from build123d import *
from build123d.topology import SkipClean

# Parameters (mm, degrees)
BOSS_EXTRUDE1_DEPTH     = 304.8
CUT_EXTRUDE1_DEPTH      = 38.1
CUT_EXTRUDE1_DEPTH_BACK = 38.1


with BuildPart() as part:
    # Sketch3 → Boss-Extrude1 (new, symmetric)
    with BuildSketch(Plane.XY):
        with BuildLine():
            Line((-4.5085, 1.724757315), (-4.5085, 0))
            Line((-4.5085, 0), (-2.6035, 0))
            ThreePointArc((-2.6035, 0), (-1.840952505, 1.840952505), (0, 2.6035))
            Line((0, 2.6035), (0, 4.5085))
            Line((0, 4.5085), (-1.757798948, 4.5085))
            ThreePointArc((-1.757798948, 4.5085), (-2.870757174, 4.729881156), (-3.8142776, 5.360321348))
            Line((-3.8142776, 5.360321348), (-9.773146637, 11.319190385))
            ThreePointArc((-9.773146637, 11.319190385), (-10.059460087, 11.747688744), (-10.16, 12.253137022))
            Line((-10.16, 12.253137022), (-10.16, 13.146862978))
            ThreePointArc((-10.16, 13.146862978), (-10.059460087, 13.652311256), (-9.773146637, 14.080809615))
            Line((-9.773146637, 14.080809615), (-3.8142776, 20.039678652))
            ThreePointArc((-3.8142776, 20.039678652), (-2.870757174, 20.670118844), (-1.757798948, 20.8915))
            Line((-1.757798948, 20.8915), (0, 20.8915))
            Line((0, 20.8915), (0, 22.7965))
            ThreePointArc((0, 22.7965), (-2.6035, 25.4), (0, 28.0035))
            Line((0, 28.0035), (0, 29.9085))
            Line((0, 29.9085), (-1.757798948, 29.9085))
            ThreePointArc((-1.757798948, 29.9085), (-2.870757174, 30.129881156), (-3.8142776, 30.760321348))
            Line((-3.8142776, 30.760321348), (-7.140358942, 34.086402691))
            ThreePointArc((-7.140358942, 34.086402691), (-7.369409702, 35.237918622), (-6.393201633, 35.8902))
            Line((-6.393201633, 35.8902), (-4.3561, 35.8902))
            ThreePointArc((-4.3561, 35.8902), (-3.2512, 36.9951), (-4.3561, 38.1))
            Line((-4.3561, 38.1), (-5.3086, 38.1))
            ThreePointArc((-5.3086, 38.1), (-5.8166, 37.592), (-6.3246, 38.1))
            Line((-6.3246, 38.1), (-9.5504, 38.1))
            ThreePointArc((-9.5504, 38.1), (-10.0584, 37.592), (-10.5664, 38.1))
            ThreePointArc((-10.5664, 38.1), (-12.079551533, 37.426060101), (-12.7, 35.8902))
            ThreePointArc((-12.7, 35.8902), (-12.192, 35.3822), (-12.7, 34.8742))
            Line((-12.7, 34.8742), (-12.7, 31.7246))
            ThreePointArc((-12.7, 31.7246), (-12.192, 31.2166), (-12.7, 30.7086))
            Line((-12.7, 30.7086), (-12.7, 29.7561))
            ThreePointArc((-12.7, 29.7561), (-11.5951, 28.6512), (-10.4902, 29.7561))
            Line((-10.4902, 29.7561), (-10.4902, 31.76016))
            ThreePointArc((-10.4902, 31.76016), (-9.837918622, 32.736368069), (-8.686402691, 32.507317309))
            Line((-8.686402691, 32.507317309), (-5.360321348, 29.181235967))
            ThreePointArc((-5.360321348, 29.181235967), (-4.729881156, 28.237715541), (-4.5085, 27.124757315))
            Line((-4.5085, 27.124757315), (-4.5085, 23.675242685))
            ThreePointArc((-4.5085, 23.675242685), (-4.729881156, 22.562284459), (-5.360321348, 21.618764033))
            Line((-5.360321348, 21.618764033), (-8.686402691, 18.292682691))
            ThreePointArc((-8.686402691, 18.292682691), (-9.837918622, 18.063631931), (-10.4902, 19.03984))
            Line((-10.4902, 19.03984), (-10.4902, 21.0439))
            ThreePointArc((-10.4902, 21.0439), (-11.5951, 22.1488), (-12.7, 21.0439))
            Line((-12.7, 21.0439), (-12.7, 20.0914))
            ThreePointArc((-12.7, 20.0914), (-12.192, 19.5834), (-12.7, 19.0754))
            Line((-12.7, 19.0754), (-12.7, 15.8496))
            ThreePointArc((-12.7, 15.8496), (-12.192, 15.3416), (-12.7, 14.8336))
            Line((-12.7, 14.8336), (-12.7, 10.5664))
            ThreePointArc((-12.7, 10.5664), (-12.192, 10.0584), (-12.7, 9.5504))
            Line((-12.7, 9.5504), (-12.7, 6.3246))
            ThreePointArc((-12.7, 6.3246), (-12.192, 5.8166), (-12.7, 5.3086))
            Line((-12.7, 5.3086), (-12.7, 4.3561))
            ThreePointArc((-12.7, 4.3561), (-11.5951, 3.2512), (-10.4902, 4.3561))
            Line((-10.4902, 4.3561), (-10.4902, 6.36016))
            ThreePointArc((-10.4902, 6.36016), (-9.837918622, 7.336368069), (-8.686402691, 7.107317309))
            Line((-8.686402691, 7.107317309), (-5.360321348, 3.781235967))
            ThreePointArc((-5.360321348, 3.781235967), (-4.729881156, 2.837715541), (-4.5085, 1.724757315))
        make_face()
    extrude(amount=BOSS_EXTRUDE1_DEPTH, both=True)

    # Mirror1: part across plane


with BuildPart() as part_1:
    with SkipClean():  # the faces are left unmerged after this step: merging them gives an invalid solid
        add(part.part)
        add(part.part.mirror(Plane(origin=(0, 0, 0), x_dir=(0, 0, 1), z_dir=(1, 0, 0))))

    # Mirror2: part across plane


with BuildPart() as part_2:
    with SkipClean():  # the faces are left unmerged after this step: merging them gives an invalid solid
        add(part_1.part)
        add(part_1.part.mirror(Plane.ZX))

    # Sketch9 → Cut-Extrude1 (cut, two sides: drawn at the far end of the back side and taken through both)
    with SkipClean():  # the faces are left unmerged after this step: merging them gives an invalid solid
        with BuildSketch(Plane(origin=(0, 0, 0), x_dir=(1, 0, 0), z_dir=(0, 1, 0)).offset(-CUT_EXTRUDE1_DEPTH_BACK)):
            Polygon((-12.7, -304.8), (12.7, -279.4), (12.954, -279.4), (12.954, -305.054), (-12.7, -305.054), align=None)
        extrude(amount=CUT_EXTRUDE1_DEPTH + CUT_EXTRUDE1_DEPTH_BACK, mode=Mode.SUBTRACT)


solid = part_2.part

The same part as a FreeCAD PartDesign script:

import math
import FreeCAD as App
import Part
import Sketcher

V = App.Vector
Q = App.Units.Quantity


def add_polygon(sketch, points):
    """Adds a closed chain of lines whose ends are joined by coincident constraints."""
    first, n = sketch.GeometryCount, len(points)
    for a, b in zip(points, points[1:] + points[:1]):
        sketch.addGeometry(Part.LineSegment(App.Vector(*a, 0), App.Vector(*b, 0)), False)
    for i in range(n):
        sketch.addConstraint(Sketcher.Constraint("Coincident", first + i, 2, first + (i + 1) % n, 1))

doc = App.newDocument("Part")
body = doc.addObject("PartDesign::Body", "Body")

# Sketch on XY plane
sketch1 = body.newObject("Sketcher::SketchObject", "Sketch")
sketch1.AttachmentSupport = (doc.getObject("XY_Plane"), [""])
sketch1.MapMode = "FlatFace"
sketch1.addGeometry(Part.LineSegment(V(-4.5085, 1.724757, 0), V(-4.5085, 0, 0)), False)
sketch1.addGeometry(Part.LineSegment(V(-4.5085, 0, 0), V(-2.6035, 0, 0)), False)
sketch1.addGeometry(Part.ArcOfCircle(Part.Circle(V(0, 0, 0), V(0, 0, 1), 2.6035), math.radians(90), math.radians(180)), False)
sketch1.addGeometry(Part.LineSegment(V(0, 2.6035, 0), V(0, 4.5085, 0)), False)
sketch1.addGeometry(Part.LineSegment(V(0, 4.5085, 0), V(-1.757799, 4.5085, 0)), False)
sketch1.addGeometry(Part.ArcOfCircle(Part.Circle(V(-1.757799, 7.4168, 0), V(0, 0, 1), 2.9083), math.radians(-135), math.radians(-90)), False)
sketch1.addGeometry(Part.LineSegment(V(-3.814278, 5.360321, 0), V(-9.773147, 11.31919, 0)), False)
sketch1.addGeometry(Part.ArcOfCircle(Part.Circle(V(-8.8392, 12.253137, 0), V(0, 0, 1), 1.3208), math.radians(180), math.radians(225)), False)
sketch1.addGeometry(Part.LineSegment(V(-10.16, 12.253137, 0), V(-10.16, 13.146863, 0)), False)
sketch1.addGeometry(Part.ArcOfCircle(Part.Circle(V(-8.8392, 13.146863, 0), V(0, 0, 1), 1.3208), math.radians(135), math.radians(180)), False)
sketch1.addGeometry(Part.LineSegment(V(-9.773147, 14.08081, 0), V(-3.814278, 20.039679, 0)), False)
sketch1.addGeometry(Part.ArcOfCircle(Part.Circle(V(-1.757799, 17.9832, 0), V(0, 0, 1), 2.9083), math.radians(90), math.radians(135)), False)
sketch1.addGeometry(Part.LineSegment(V(-1.757799, 20.8915, 0), V(0, 20.8915, 0)), False)
sketch1.addGeometry(Part.LineSegment(V(0, 20.8915, 0), V(0, 22.7965, 0)), False)
sketch1.addGeometry(Part.ArcOfCircle(Part.Circle(V(0, 25.4, 0), V(0, 0, 1), 2.6035), math.radians(90), math.radians(270)), False)
sketch1.addGeometry(Part.LineSegment(V(0, 28.0035, 0), V(0, 29.9085, 0)), False)
sketch1.addGeometry(Part.LineSegment(V(0, 29.9085, 0), V(-1.757799, 29.9085, 0)), False)
sketch1.addGeometry(Part.ArcOfCircle(Part.Circle(V(-1.757799, 32.8168, 0), V(0, 0, 1), 2.9083), math.radians(-135), math.radians(-90)), False)
sketch1.addGeometry(Part.LineSegment(V(-3.814278, 30.760321, 0), V(-7.140359, 34.086403, 0)), False)
sketch1.addGeometry(Part.ArcOfCircle(Part.Circle(V(-6.393202, 34.83356, 0), V(0, 0, 1), 1.05664), math.radians(90), math.radians(225)), False)
sketch1.addGeometry(Part.LineSegment(V(-6.393202, 35.8902, 0), V(-4.3561, 35.8902, 0)), False)
sketch1.addGeometry(Part.ArcOfCircle(Part.Circle(V(-4.3561, 36.9951, 0), V(0, 0, 1), 1.1049), math.radians(-90), math.radians(90)), False)
sketch1.addGeometry(Part.LineSegment(V(-4.3561, 38.1, 0), V(-5.3086, 38.1, 0)), False)
sketch1.addGeometry(Part.ArcOfCircle(Part.Circle(V(-5.8166, 38.1, 0), V(0, 0, 1), 0.508), math.radians(180), math.radians(360)), False)
sketch1.addGeometry(Part.LineSegment(V(-6.3246, 38.1, 0), V(-9.5504, 38.1, 0)), False)
sketch1.addGeometry(Part.ArcOfCircle(Part.Circle(V(-10.0584, 38.1, 0), V(0, 0, 1), 0.508), math.radians(180), math.radians(360)), False)
sketch1.addGeometry(Part.ArcOfCircle(Part.Circle(V(-10.488839, 35.8902, 0), V(0, 0, 1), 2.211161), math.radians(92.010172), math.radians(180)), False)
sketch1.addGeometry(Part.ArcOfCircle(Part.Circle(V(-12.7, 35.3822, 0), V(0, 0, 1), 0.508), math.radians(-90), math.radians(90)), False)
sketch1.addGeometry(Part.LineSegment(V(-12.7, 34.8742, 0), V(-12.7, 31.7246, 0)), False)
sketch1.addGeometry(Part.ArcOfCircle(Part.Circle(V(-12.7, 31.2166, 0), V(0, 0, 1), 0.508), math.radians(-90), math.radians(90)), False)
sketch1.addGeometry(Part.LineSegment(V(-12.7, 30.7086, 0), V(-12.7, 29.7561, 0)), False)
sketch1.addGeometry(Part.ArcOfCircle(Part.Circle(V(-11.5951, 29.7561, 0), V(0, 0, 1), 1.1049), math.radians(180), math.radians(360)), False)
sketch1.addGeometry(Part.LineSegment(V(-10.4902, 29.7561, 0), V(-10.4902, 31.76016, 0)), False)
sketch1.addGeometry(Part.ArcOfCircle(Part.Circle(V(-9.43356, 31.76016, 0), V(0, 0, 1), 1.05664), math.radians(45), math.radians(180)), False)
sketch1.addGeometry(Part.LineSegment(V(-8.686403, 32.507317, 0), V(-5.360321, 29.181236, 0)), False)
sketch1.addGeometry(Part.ArcOfCircle(Part.Circle(V(-7.4168, 27.124757, 0), V(0, 0, 1), 2.9083), math.radians(0), math.radians(45)), False)
sketch1.addGeometry(Part.LineSegment(V(-4.5085, 27.124757, 0), V(-4.5085, 23.675243, 0)), False)
sketch1.addGeometry(Part.ArcOfCircle(Part.Circle(V(-7.4168, 23.675243, 0), V(0, 0, 1), 2.9083), math.radians(-45), math.radians(0)), False)
sketch1.addGeometry(Part.LineSegment(V(-5.360321, 21.618764, 0), V(-8.686403, 18.292683, 0)), False)
sketch1.addGeometry(Part.ArcOfCircle(Part.Circle(V(-9.43356, 19.03984, 0), V(0, 0, 1), 1.05664), math.radians(180), math.radians(315)), False)
sketch1.addGeometry(Part.LineSegment(V(-10.4902, 19.03984, 0), V(-10.4902, 21.0439, 0)), False)
sketch1.addGeometry(Part.ArcOfCircle(Part.Circle(V(-11.5951, 21.0439, 0), V(0, 0, 1), 1.1049), math.radians(0), math.radians(180)), False)
sketch1.addGeometry(Part.LineSegment(V(-12.7, 21.0439, 0), V(-12.7, 20.0914, 0)), False)
sketch1.addGeometry(Part.ArcOfCircle(Part.Circle(V(-12.7, 19.5834, 0), V(0, 0, 1), 0.508), math.radians(-90), math.radians(90)), False)
sketch1.addGeometry(Part.LineSegment(V(-12.7, 19.0754, 0), V(-12.7, 15.8496, 0)), False)
sketch1.addGeometry(Part.ArcOfCircle(Part.Circle(V(-12.7, 15.3416, 0), V(0, 0, 1), 0.508), math.radians(-90), math.radians(90)), False)
sketch1.addGeometry(Part.LineSegment(V(-12.7, 14.8336, 0), V(-12.7, 10.5664, 0)), False)
sketch1.addGeometry(Part.ArcOfCircle(Part.Circle(V(-12.7, 10.0584, 0), V(0, 0, 1), 0.508), math.radians(-90), math.radians(90)), False)
sketch1.addGeometry(Part.LineSegment(V(-12.7, 9.5504, 0), V(-12.7, 6.3246, 0)), False)
sketch1.addGeometry(Part.ArcOfCircle(Part.Circle(V(-12.7, 5.8166, 0), V(0, 0, 1), 0.508), math.radians(-90), math.radians(90)), False)
sketch1.addGeometry(Part.LineSegment(V(-12.7, 5.3086, 0), V(-12.7, 4.3561, 0)), False)
sketch1.addGeometry(Part.ArcOfCircle(Part.Circle(V(-11.5951, 4.3561, 0), V(0, 0, 1), 1.1049), math.radians(180), math.radians(360)), False)
sketch1.addGeometry(Part.LineSegment(V(-10.4902, 4.3561, 0), V(-10.4902, 6.36016, 0)), False)
sketch1.addGeometry(Part.ArcOfCircle(Part.Circle(V(-9.43356, 6.36016, 0), V(0, 0, 1), 1.05664), math.radians(45), math.radians(180)), False)
sketch1.addGeometry(Part.LineSegment(V(-8.686403, 7.107317, 0), V(-5.360321, 3.781236, 0)), False)
sketch1.addGeometry(Part.ArcOfCircle(Part.Circle(V(-7.4168, 1.724757, 0), V(0, 0, 1), 2.9083), math.radians(0), math.radians(45)), False)
sketch1.addConstraint(Sketcher.Constraint("Coincident", 0, 2, 1, 1))
sketch1.addConstraint(Sketcher.Constraint("Coincident", 1, 2, 2, 2))
sketch1.addConstraint(Sketcher.Constraint("Coincident", 2, 1, 3, 1))
sketch1.addConstraint(Sketcher.Constraint("Coincident", 3, 2, 4, 1))
sketch1.addConstraint(Sketcher.Constraint("Tangent", 4, 2, 5, 2))
sketch1.addConstraint(Sketcher.Constraint("Tangent", 5, 1, 6, 1))
sketch1.addConstraint(Sketcher.Constraint("Tangent", 6, 2, 7, 2))
sketch1.addConstraint(Sketcher.Constraint("Tangent", 7, 1, 8, 1))
sketch1.addConstraint(Sketcher.Constraint("Tangent", 8, 2, 9, 2))
sketch1.addConstraint(Sketcher.Constraint("Tangent", 9, 1, 10, 1))
sketch1.addConstraint(Sketcher.Constraint("Tangent", 10, 2, 11, 2))
sketch1.addConstraint(Sketcher.Constraint("Tangent", 11, 1, 12, 1))
sketch1.addConstraint(Sketcher.Constraint("Coincident", 12, 2, 13, 1))
sketch1.addConstraint(Sketcher.Constraint("Coincident", 13, 2, 14, 2))
sketch1.addConstraint(Sketcher.Constraint("Coincident", 14, 1, 15, 1))
sketch1.addConstraint(Sketcher.Constraint("Coincident", 15, 2, 16, 1))
sketch1.addConstraint(Sketcher.Constraint("Tangent", 16, 2, 17, 2))
sketch1.addConstraint(Sketcher.Constraint("Tangent", 17, 1, 18, 1))
sketch1.addConstraint(Sketcher.Constraint("Tangent", 18, 2, 19, 2))
sketch1.addConstraint(Sketcher.Constraint("Tangent", 19, 1, 20, 1))
sketch1.addConstraint(Sketcher.Constraint("Tangent", 20, 2, 21, 1))
sketch1.addConstraint(Sketcher.Constraint("Tangent", 21, 2, 22, 1))
sketch1.addConstraint(Sketcher.Constraint("Coincident", 22, 2, 23, 2))
sketch1.addConstraint(Sketcher.Constraint("Coincident", 23, 1, 24, 1))
sketch1.addConstraint(Sketcher.Constraint("Coincident", 24, 2, 25, 2))
sketch1.addConstraint(Sketcher.Constraint("Coincident", 25, 1, 26, 1))
sketch1.addConstraint(Sketcher.Constraint("Coincident", 26, 2, 27, 2))
sketch1.addConstraint(Sketcher.Constraint("Coincident", 27, 1, 28, 1))
sketch1.addConstraint(Sketcher.Constraint("Coincident", 28, 2, 29, 2))
sketch1.addConstraint(Sketcher.Constraint("Coincident", 29, 1, 30, 1))
sketch1.addConstraint(Sketcher.Constraint("Tangent", 30, 2, 31, 1))
sketch1.addConstraint(Sketcher.Constraint("Tangent", 31, 2, 32, 1))
sketch1.addConstraint(Sketcher.Constraint("Tangent", 32, 2, 33, 2))
sketch1.addConstraint(Sketcher.Constraint("Tangent", 33, 1, 34, 1))
sketch1.addConstraint(Sketcher.Constraint("Tangent", 34, 2, 35, 2))
sketch1.addConstraint(Sketcher.Constraint("Tangent", 35, 1, 36, 1))
sketch1.addConstraint(Sketcher.Constraint("Tangent", 36, 2, 37, 2))
sketch1.addConstraint(Sketcher.Constraint("Tangent", 37, 1, 38, 1))
sketch1.addConstraint(Sketcher.Constraint("Tangent", 38, 2, 39, 2))
sketch1.addConstraint(Sketcher.Constraint("Tangent", 39, 1, 40, 1))
sketch1.addConstraint(Sketcher.Constraint("Tangent", 40, 2, 41, 1))
sketch1.addConstraint(Sketcher.Constraint("Tangent", 41, 2, 42, 1))
sketch1.addConstraint(Sketcher.Constraint("Coincident", 42, 2, 43, 2))
sketch1.addConstraint(Sketcher.Constraint("Coincident", 43, 1, 44, 1))
sketch1.addConstraint(Sketcher.Constraint("Coincident", 44, 2, 45, 2))
sketch1.addConstraint(Sketcher.Constraint("Coincident", 45, 1, 46, 1))
sketch1.addConstraint(Sketcher.Constraint("Coincident", 46, 2, 47, 2))
sketch1.addConstraint(Sketcher.Constraint("Coincident", 47, 1, 48, 1))
sketch1.addConstraint(Sketcher.Constraint("Coincident", 48, 2, 49, 2))
sketch1.addConstraint(Sketcher.Constraint("Coincident", 49, 1, 50, 1))
sketch1.addConstraint(Sketcher.Constraint("Tangent", 50, 2, 51, 1))
sketch1.addConstraint(Sketcher.Constraint("Tangent", 51, 2, 52, 1))
sketch1.addConstraint(Sketcher.Constraint("Tangent", 52, 2, 53, 2))
sketch1.addConstraint(Sketcher.Constraint("Tangent", 53, 1, 54, 1))
sketch1.addConstraint(Sketcher.Constraint("Tangent", 54, 2, 55, 2))
sketch1.addConstraint(Sketcher.Constraint("Tangent", 55, 1, 0, 1))
sketch1.addConstraint(Sketcher.Constraint("Vertical", 0))
sketch1.addConstraint(Sketcher.Constraint("Horizontal", 1))
sketch1.addConstraint(Sketcher.Constraint("Vertical", 3))
sketch1.addConstraint(Sketcher.Constraint("Horizontal", 4))
sketch1.addConstraint(Sketcher.Constraint("Vertical", 8))
sketch1.addConstraint(Sketcher.Constraint("Horizontal", 12))
sketch1.addConstraint(Sketcher.Constraint("Vertical", 13))
sketch1.addConstraint(Sketcher.Constraint("Vertical", 15))
sketch1.addConstraint(Sketcher.Constraint("Horizontal", 16))
sketch1.addConstraint(Sketcher.Constraint("Horizontal", 20))
sketch1.addConstraint(Sketcher.Constraint("Horizontal", 22))
sketch1.addConstraint(Sketcher.Constraint("Horizontal", 24))
sketch1.addConstraint(Sketcher.Constraint("Vertical", 28))
sketch1.addConstraint(Sketcher.Constraint("Vertical", 30))
sketch1.addConstraint(Sketcher.Constraint("Vertical", 32))
sketch1.addConstraint(Sketcher.Constraint("Vertical", 36))
sketch1.addConstraint(Sketcher.Constraint("Vertical", 40))
sketch1.addConstraint(Sketcher.Constraint("Vertical", 42))
sketch1.addConstraint(Sketcher.Constraint("Vertical", 44))
sketch1.addConstraint(Sketcher.Constraint("Vertical", 46))
sketch1.addConstraint(Sketcher.Constraint("Vertical", 48))
sketch1.addConstraint(Sketcher.Constraint("Vertical", 50))
sketch1.addConstraint(Sketcher.Constraint("Vertical", 52))
sketch1.addConstraint(Sketcher.Constraint("Coincident", 2, 3, -1, 1))
sketch1.addConstraint(Sketcher.Constraint("Equal", 7, 9))
sketch1.addConstraint(Sketcher.Constraint("Equal", 5, 11))
sketch1.addConstraint(Sketcher.Constraint("Equal", 2, 14))
sketch1.addConstraint(Sketcher.Constraint("Equal", 11, 17))
sketch1.addConstraint(Sketcher.Constraint("Equal", 23, 25))
sketch1.addConstraint(Sketcher.Constraint("Equal", 25, 27))
sketch1.addConstraint(Sketcher.Constraint("Equal", 27, 29))
sketch1.addConstraint(Sketcher.Constraint("Equal", 21, 31))
sketch1.addConstraint(Sketcher.Constraint("Equal", 19, 33))
sketch1.addConstraint(Sketcher.Constraint("Equal", 17, 35))
sketch1.addConstraint(Sketcher.Constraint("Equal", 35, 37))
sketch1.addConstraint(Sketcher.Constraint("Equal", 33, 39))
sketch1.addConstraint(Sketcher.Constraint("Equal", 31, 41))
sketch1.addConstraint(Sketcher.Constraint("Equal", 29, 43))
sketch1.addConstraint(Sketcher.Constraint("Equal", 43, 45))
sketch1.addConstraint(Sketcher.Constraint("Equal", 45, 47))
sketch1.addConstraint(Sketcher.Constraint("Equal", 47, 49))
sketch1.addConstraint(Sketcher.Constraint("Equal", 41, 51))
sketch1.addConstraint(Sketcher.Constraint("Equal", 39, 53))
sketch1.addConstraint(Sketcher.Constraint("Equal", 37, 55))
sketch1.addConstraint(Sketcher.Constraint("PointOnObject", 14, 3, -2))
sketch1.addConstraint(Sketcher.Constraint("PointOnObject", 0, 2, -1))
sketch1.addConstraint(Sketcher.Constraint("PointOnObject", 2, 1, -2))
sketch1.addConstraint(Sketcher.Constraint("PointOnObject", 12, 2, -2))
sketch1.addConstraint(Sketcher.Constraint("PointOnObject", 14, 1, -2))
sketch1.addConstraint(Sketcher.Constraint("Perpendicular", 6, 10))
sketch1.addConstraint(Sketcher.Constraint("Perpendicular", 10, 18))
sketch1.addConstraint(Sketcher.Constraint("Parallel", 18, 34))
sketch1.addConstraint(Sketcher.Constraint("Perpendicular", 34, 38))
sketch1.addConstraint(Sketcher.Constraint("Perpendicular", 38, 54))
sketch1.addConstraint(Sketcher.Constraint("Horizontal", 23, 3, 25, 3))
sketch1.addConstraint(Sketcher.Constraint("Horizontal", 26, 3, 19, 1))
sketch1.addConstraint(Sketcher.Constraint("Horizontal", 25, 3, 21, 2))
sketch1.addConstraint(Sketcher.Constraint("Horizontal", 22, 2, 23, 1))
sketch1.addConstraint(Sketcher.Constraint("Horizontal", 24, 2, 25, 1))
sketch1.addConstraint(Sketcher.Constraint("Horizontal", 20, 2, 26, 2))
sketch1.addConstraint(Sketcher.Constraint("Vertical", 5, 3, 11, 3))
sketch1.addConstraint(Sketcher.Constraint("Vertical", 11, 3, 17, 3))
sketch1.addConstraint(Sketcher.Constraint("Vertical", 27, 3, 29, 3))
sketch1.addConstraint(Sketcher.Constraint("Vertical", 33, 3, 39, 3))
sketch1.addConstraint(Sketcher.Constraint("Vertical", 29, 3, 43, 3))
sketch1.addConstraint(Sketcher.Constraint("Vertical", 43, 3, 45, 3))
sketch1.addConstraint(Sketcher.Constraint("Vertical", 45, 3, 47, 3))
sketch1.addConstraint(Sketcher.Constraint("Vertical", 47, 3, 49, 3))
sketch1.addConstraint(Sketcher.Constraint("Vertical", 41, 3, 51, 3))
sketch1.addConstraint(Sketcher.Constraint("Vertical", 37, 3, 55, 3))
sketch1.addConstraint(Sketcher.Constraint("Vertical", 6, 2, 9, 1))
sketch1.addConstraint(Sketcher.Constraint("Vertical", 49, 3, 26, 2))
sketch1.addConstraint(Sketcher.Constraint("Vertical", 26, 2, 27, 1))
sketch1.addConstraint(Sketcher.Constraint("Vertical", 28, 2, 29, 1))
sketch1.addConstraint(Sketcher.Constraint("Vertical", 42, 2, 43, 1))
sketch1.addConstraint(Sketcher.Constraint("Vertical", 44, 2, 45, 1))
sketch1.addConstraint(Sketcher.Constraint("Vertical", 46, 2, 47, 1))
sketch1.addConstraint(Sketcher.Constraint("Equal", 1, 3))
sketch1.addConstraint(Sketcher.Constraint("Equal", 3, 13))
sketch1.addConstraint(Sketcher.Constraint("Equal", 13, 15))
sketch1.addConstraint(Sketcher.Constraint("Equal", 22, 30))
sketch1.addConstraint(Sketcher.Constraint("Equal", 32, 40))
sketch1.addConstraint(Sketcher.Constraint("Equal", 30, 42))
sketch1.addConstraint(Sketcher.Constraint("Equal", 24, 44))
sketch1.addConstraint(Sketcher.Constraint("Equal", 44, 48))
sketch1.addConstraint(Sketcher.Constraint("Equal", 42, 50))
sketch1.addConstraint(Sketcher.Constraint("Equal", 40, 52))
sketch1.addConstraint(Sketcher.Constraint("Equal", 18, 34))
sketch1.addConstraint(Sketcher.Constraint("Radius", 23, Q("0.02 in")))
sketch1.addConstraint(Sketcher.Constraint("DistanceY", -1, 1, 14, 3, Q("1 in")))
sketch1.addConstraint(Sketcher.Constraint("Radius", 7, Q("0.052 in")))
sketch1.addConstraint(Sketcher.Constraint("DistanceY", -1, 1, 23, 3, Q("1.5 in")))
sketch1.addConstraint(Sketcher.Constraint("DistanceX", 7, 1, -1, 1, Q("0.4 in")))
sketch1.addConstraint(Sketcher.Constraint("Radius", 2, Q("0.1025 in")))
sketch1.addConstraint(Sketcher.Constraint("Radius", 5, Q("0.1145 in")))
sketch1.addConstraint(Sketcher.Constraint("Radius", 19, Q("0.0416 in")))
sketch1.addConstraint(Sketcher.Constraint("Radius", 21, Q("0.0435 in")))
sketch1.addConstraint(Sketcher.Constraint("DistanceX", 1, 1, 1, 2, Q("0.075 in")))
sketch1.addConstraint(Sketcher.Constraint("DistanceX", 24, 2, 24, 1, Q("0.127 in")))
sketch1.addConstraint(Sketcher.Constraint("DistanceY", 28, 2, 28, 1, Q("0.124 in")))
sketch1.addConstraint(Sketcher.Constraint("DistanceY", 46, 2, 46, 1, Q("0.168 in")))
sketch1.addConstraint(Sketcher.Constraint("DistanceX", 22, 2, 22, 1, Q("0.0375 in")))
sketch1.addConstraint(Sketcher.Constraint("DistanceY", 32, 1, 32, 2, Q("0.0789 in")))
sketch1.addConstraint(Sketcher.Constraint("DistanceX", 23, 3, -1, 1, Q("0.229 in")))
sketch1.addConstraint(Sketcher.Constraint("DistanceY", -1, 1, 43, 3, Q("0.771 in")))
sketch1.addConstraint(Sketcher.Constraint("DistanceX", 4, 2, 4, 1, 1.757799))
pad1 = body.newObject("PartDesign::Pad", "Pad")
pad1.Profile = sketch1
pad1.Length = Q("24 in")
pad1.Midplane = True
body2 = doc.addObject("PartDesign::Body", "Body001")
doc.recompute()

body2.BaseFeature = body
doc.recompute()

mirroring = doc.addObject("Part::Mirroring", "Mirroring")
mirroring.Source = body
mirroring.Base = V(0, 0, 0)
mirroring.Normal = V(1, 0, 0)
body3 = doc.addObject("PartDesign::Body", "Body002")
body3.BaseFeature = mirroring
boolean = body2.newObject("PartDesign::Boolean", "Boolean")
boolean.Type = "Fuse"
boolean.addObjects([body3])
doc.recompute()
body4 = doc.addObject("PartDesign::Body", "Body003")
doc.recompute()

body4.BaseFeature = body2
doc.recompute()

mirroring2 = doc.addObject("Part::Mirroring", "Mirroring001")
mirroring2.Source = body2
mirroring2.Base = V(0, 0, 0)
mirroring2.Normal = V(0, 1, 0)
body5 = doc.addObject("PartDesign::Body", "Body004")
body5.BaseFeature = mirroring2
boolean2 = body4.newObject("PartDesign::Boolean", "Boolean001")
boolean2.Type = "Fuse"
boolean2.addObjects([body5])
doc.recompute()

# Sketch on XZ plane
sketch2 = body4.newObject("Sketcher::SketchObject", "Sketch001")
sketch2.AttachmentSupport = (doc.getObject("XZ_Plane003"), [""])
sketch2.MapMode = "FlatFace"
add_polygon(sketch2, [(12.7, 279.4), (-12.7, 304.8), (-12.7, 305.054), (12.954, 305.054), (12.954, 279.4)])  # lines 0-4
sketch2.addConstraint(Sketcher.Constraint("Vertical", 1))
sketch2.addConstraint(Sketcher.Constraint("Horizontal", 2))
sketch2.addConstraint(Sketcher.Constraint("Vertical", 3))
sketch2.addConstraint(Sketcher.Constraint("Horizontal", 4))
sketch2.addConstraint(Sketcher.Constraint("Equal", 4, 1))
sketch2.addConstraint(Sketcher.Constraint("Equal", 2, 3))
sketch2.addConstraint(Sketcher.Constraint("DistanceY", -1, 1, 0, 2, Q("12 in")))
sketch2.addConstraint(Sketcher.Constraint("DistanceY", -1, 1, 3, 2, Q("11 in")))
sketch2.addConstraint(Sketcher.Constraint("DistanceX", 2, 1, 2, 2, Q("1.01 in")))
sketch2.addConstraint(Sketcher.Constraint("DistanceX", 0, 2, -1, 1, Q("0.5 in")))
pocket1 = body4.newObject("PartDesign::Pocket", "Pocket")
pocket1.Profile = sketch2
pocket1.Type = "ThroughAll"
pocket1.Midplane = True
mirroring.Visibility = False
mirroring2.Visibility = False

doc.recompute()
